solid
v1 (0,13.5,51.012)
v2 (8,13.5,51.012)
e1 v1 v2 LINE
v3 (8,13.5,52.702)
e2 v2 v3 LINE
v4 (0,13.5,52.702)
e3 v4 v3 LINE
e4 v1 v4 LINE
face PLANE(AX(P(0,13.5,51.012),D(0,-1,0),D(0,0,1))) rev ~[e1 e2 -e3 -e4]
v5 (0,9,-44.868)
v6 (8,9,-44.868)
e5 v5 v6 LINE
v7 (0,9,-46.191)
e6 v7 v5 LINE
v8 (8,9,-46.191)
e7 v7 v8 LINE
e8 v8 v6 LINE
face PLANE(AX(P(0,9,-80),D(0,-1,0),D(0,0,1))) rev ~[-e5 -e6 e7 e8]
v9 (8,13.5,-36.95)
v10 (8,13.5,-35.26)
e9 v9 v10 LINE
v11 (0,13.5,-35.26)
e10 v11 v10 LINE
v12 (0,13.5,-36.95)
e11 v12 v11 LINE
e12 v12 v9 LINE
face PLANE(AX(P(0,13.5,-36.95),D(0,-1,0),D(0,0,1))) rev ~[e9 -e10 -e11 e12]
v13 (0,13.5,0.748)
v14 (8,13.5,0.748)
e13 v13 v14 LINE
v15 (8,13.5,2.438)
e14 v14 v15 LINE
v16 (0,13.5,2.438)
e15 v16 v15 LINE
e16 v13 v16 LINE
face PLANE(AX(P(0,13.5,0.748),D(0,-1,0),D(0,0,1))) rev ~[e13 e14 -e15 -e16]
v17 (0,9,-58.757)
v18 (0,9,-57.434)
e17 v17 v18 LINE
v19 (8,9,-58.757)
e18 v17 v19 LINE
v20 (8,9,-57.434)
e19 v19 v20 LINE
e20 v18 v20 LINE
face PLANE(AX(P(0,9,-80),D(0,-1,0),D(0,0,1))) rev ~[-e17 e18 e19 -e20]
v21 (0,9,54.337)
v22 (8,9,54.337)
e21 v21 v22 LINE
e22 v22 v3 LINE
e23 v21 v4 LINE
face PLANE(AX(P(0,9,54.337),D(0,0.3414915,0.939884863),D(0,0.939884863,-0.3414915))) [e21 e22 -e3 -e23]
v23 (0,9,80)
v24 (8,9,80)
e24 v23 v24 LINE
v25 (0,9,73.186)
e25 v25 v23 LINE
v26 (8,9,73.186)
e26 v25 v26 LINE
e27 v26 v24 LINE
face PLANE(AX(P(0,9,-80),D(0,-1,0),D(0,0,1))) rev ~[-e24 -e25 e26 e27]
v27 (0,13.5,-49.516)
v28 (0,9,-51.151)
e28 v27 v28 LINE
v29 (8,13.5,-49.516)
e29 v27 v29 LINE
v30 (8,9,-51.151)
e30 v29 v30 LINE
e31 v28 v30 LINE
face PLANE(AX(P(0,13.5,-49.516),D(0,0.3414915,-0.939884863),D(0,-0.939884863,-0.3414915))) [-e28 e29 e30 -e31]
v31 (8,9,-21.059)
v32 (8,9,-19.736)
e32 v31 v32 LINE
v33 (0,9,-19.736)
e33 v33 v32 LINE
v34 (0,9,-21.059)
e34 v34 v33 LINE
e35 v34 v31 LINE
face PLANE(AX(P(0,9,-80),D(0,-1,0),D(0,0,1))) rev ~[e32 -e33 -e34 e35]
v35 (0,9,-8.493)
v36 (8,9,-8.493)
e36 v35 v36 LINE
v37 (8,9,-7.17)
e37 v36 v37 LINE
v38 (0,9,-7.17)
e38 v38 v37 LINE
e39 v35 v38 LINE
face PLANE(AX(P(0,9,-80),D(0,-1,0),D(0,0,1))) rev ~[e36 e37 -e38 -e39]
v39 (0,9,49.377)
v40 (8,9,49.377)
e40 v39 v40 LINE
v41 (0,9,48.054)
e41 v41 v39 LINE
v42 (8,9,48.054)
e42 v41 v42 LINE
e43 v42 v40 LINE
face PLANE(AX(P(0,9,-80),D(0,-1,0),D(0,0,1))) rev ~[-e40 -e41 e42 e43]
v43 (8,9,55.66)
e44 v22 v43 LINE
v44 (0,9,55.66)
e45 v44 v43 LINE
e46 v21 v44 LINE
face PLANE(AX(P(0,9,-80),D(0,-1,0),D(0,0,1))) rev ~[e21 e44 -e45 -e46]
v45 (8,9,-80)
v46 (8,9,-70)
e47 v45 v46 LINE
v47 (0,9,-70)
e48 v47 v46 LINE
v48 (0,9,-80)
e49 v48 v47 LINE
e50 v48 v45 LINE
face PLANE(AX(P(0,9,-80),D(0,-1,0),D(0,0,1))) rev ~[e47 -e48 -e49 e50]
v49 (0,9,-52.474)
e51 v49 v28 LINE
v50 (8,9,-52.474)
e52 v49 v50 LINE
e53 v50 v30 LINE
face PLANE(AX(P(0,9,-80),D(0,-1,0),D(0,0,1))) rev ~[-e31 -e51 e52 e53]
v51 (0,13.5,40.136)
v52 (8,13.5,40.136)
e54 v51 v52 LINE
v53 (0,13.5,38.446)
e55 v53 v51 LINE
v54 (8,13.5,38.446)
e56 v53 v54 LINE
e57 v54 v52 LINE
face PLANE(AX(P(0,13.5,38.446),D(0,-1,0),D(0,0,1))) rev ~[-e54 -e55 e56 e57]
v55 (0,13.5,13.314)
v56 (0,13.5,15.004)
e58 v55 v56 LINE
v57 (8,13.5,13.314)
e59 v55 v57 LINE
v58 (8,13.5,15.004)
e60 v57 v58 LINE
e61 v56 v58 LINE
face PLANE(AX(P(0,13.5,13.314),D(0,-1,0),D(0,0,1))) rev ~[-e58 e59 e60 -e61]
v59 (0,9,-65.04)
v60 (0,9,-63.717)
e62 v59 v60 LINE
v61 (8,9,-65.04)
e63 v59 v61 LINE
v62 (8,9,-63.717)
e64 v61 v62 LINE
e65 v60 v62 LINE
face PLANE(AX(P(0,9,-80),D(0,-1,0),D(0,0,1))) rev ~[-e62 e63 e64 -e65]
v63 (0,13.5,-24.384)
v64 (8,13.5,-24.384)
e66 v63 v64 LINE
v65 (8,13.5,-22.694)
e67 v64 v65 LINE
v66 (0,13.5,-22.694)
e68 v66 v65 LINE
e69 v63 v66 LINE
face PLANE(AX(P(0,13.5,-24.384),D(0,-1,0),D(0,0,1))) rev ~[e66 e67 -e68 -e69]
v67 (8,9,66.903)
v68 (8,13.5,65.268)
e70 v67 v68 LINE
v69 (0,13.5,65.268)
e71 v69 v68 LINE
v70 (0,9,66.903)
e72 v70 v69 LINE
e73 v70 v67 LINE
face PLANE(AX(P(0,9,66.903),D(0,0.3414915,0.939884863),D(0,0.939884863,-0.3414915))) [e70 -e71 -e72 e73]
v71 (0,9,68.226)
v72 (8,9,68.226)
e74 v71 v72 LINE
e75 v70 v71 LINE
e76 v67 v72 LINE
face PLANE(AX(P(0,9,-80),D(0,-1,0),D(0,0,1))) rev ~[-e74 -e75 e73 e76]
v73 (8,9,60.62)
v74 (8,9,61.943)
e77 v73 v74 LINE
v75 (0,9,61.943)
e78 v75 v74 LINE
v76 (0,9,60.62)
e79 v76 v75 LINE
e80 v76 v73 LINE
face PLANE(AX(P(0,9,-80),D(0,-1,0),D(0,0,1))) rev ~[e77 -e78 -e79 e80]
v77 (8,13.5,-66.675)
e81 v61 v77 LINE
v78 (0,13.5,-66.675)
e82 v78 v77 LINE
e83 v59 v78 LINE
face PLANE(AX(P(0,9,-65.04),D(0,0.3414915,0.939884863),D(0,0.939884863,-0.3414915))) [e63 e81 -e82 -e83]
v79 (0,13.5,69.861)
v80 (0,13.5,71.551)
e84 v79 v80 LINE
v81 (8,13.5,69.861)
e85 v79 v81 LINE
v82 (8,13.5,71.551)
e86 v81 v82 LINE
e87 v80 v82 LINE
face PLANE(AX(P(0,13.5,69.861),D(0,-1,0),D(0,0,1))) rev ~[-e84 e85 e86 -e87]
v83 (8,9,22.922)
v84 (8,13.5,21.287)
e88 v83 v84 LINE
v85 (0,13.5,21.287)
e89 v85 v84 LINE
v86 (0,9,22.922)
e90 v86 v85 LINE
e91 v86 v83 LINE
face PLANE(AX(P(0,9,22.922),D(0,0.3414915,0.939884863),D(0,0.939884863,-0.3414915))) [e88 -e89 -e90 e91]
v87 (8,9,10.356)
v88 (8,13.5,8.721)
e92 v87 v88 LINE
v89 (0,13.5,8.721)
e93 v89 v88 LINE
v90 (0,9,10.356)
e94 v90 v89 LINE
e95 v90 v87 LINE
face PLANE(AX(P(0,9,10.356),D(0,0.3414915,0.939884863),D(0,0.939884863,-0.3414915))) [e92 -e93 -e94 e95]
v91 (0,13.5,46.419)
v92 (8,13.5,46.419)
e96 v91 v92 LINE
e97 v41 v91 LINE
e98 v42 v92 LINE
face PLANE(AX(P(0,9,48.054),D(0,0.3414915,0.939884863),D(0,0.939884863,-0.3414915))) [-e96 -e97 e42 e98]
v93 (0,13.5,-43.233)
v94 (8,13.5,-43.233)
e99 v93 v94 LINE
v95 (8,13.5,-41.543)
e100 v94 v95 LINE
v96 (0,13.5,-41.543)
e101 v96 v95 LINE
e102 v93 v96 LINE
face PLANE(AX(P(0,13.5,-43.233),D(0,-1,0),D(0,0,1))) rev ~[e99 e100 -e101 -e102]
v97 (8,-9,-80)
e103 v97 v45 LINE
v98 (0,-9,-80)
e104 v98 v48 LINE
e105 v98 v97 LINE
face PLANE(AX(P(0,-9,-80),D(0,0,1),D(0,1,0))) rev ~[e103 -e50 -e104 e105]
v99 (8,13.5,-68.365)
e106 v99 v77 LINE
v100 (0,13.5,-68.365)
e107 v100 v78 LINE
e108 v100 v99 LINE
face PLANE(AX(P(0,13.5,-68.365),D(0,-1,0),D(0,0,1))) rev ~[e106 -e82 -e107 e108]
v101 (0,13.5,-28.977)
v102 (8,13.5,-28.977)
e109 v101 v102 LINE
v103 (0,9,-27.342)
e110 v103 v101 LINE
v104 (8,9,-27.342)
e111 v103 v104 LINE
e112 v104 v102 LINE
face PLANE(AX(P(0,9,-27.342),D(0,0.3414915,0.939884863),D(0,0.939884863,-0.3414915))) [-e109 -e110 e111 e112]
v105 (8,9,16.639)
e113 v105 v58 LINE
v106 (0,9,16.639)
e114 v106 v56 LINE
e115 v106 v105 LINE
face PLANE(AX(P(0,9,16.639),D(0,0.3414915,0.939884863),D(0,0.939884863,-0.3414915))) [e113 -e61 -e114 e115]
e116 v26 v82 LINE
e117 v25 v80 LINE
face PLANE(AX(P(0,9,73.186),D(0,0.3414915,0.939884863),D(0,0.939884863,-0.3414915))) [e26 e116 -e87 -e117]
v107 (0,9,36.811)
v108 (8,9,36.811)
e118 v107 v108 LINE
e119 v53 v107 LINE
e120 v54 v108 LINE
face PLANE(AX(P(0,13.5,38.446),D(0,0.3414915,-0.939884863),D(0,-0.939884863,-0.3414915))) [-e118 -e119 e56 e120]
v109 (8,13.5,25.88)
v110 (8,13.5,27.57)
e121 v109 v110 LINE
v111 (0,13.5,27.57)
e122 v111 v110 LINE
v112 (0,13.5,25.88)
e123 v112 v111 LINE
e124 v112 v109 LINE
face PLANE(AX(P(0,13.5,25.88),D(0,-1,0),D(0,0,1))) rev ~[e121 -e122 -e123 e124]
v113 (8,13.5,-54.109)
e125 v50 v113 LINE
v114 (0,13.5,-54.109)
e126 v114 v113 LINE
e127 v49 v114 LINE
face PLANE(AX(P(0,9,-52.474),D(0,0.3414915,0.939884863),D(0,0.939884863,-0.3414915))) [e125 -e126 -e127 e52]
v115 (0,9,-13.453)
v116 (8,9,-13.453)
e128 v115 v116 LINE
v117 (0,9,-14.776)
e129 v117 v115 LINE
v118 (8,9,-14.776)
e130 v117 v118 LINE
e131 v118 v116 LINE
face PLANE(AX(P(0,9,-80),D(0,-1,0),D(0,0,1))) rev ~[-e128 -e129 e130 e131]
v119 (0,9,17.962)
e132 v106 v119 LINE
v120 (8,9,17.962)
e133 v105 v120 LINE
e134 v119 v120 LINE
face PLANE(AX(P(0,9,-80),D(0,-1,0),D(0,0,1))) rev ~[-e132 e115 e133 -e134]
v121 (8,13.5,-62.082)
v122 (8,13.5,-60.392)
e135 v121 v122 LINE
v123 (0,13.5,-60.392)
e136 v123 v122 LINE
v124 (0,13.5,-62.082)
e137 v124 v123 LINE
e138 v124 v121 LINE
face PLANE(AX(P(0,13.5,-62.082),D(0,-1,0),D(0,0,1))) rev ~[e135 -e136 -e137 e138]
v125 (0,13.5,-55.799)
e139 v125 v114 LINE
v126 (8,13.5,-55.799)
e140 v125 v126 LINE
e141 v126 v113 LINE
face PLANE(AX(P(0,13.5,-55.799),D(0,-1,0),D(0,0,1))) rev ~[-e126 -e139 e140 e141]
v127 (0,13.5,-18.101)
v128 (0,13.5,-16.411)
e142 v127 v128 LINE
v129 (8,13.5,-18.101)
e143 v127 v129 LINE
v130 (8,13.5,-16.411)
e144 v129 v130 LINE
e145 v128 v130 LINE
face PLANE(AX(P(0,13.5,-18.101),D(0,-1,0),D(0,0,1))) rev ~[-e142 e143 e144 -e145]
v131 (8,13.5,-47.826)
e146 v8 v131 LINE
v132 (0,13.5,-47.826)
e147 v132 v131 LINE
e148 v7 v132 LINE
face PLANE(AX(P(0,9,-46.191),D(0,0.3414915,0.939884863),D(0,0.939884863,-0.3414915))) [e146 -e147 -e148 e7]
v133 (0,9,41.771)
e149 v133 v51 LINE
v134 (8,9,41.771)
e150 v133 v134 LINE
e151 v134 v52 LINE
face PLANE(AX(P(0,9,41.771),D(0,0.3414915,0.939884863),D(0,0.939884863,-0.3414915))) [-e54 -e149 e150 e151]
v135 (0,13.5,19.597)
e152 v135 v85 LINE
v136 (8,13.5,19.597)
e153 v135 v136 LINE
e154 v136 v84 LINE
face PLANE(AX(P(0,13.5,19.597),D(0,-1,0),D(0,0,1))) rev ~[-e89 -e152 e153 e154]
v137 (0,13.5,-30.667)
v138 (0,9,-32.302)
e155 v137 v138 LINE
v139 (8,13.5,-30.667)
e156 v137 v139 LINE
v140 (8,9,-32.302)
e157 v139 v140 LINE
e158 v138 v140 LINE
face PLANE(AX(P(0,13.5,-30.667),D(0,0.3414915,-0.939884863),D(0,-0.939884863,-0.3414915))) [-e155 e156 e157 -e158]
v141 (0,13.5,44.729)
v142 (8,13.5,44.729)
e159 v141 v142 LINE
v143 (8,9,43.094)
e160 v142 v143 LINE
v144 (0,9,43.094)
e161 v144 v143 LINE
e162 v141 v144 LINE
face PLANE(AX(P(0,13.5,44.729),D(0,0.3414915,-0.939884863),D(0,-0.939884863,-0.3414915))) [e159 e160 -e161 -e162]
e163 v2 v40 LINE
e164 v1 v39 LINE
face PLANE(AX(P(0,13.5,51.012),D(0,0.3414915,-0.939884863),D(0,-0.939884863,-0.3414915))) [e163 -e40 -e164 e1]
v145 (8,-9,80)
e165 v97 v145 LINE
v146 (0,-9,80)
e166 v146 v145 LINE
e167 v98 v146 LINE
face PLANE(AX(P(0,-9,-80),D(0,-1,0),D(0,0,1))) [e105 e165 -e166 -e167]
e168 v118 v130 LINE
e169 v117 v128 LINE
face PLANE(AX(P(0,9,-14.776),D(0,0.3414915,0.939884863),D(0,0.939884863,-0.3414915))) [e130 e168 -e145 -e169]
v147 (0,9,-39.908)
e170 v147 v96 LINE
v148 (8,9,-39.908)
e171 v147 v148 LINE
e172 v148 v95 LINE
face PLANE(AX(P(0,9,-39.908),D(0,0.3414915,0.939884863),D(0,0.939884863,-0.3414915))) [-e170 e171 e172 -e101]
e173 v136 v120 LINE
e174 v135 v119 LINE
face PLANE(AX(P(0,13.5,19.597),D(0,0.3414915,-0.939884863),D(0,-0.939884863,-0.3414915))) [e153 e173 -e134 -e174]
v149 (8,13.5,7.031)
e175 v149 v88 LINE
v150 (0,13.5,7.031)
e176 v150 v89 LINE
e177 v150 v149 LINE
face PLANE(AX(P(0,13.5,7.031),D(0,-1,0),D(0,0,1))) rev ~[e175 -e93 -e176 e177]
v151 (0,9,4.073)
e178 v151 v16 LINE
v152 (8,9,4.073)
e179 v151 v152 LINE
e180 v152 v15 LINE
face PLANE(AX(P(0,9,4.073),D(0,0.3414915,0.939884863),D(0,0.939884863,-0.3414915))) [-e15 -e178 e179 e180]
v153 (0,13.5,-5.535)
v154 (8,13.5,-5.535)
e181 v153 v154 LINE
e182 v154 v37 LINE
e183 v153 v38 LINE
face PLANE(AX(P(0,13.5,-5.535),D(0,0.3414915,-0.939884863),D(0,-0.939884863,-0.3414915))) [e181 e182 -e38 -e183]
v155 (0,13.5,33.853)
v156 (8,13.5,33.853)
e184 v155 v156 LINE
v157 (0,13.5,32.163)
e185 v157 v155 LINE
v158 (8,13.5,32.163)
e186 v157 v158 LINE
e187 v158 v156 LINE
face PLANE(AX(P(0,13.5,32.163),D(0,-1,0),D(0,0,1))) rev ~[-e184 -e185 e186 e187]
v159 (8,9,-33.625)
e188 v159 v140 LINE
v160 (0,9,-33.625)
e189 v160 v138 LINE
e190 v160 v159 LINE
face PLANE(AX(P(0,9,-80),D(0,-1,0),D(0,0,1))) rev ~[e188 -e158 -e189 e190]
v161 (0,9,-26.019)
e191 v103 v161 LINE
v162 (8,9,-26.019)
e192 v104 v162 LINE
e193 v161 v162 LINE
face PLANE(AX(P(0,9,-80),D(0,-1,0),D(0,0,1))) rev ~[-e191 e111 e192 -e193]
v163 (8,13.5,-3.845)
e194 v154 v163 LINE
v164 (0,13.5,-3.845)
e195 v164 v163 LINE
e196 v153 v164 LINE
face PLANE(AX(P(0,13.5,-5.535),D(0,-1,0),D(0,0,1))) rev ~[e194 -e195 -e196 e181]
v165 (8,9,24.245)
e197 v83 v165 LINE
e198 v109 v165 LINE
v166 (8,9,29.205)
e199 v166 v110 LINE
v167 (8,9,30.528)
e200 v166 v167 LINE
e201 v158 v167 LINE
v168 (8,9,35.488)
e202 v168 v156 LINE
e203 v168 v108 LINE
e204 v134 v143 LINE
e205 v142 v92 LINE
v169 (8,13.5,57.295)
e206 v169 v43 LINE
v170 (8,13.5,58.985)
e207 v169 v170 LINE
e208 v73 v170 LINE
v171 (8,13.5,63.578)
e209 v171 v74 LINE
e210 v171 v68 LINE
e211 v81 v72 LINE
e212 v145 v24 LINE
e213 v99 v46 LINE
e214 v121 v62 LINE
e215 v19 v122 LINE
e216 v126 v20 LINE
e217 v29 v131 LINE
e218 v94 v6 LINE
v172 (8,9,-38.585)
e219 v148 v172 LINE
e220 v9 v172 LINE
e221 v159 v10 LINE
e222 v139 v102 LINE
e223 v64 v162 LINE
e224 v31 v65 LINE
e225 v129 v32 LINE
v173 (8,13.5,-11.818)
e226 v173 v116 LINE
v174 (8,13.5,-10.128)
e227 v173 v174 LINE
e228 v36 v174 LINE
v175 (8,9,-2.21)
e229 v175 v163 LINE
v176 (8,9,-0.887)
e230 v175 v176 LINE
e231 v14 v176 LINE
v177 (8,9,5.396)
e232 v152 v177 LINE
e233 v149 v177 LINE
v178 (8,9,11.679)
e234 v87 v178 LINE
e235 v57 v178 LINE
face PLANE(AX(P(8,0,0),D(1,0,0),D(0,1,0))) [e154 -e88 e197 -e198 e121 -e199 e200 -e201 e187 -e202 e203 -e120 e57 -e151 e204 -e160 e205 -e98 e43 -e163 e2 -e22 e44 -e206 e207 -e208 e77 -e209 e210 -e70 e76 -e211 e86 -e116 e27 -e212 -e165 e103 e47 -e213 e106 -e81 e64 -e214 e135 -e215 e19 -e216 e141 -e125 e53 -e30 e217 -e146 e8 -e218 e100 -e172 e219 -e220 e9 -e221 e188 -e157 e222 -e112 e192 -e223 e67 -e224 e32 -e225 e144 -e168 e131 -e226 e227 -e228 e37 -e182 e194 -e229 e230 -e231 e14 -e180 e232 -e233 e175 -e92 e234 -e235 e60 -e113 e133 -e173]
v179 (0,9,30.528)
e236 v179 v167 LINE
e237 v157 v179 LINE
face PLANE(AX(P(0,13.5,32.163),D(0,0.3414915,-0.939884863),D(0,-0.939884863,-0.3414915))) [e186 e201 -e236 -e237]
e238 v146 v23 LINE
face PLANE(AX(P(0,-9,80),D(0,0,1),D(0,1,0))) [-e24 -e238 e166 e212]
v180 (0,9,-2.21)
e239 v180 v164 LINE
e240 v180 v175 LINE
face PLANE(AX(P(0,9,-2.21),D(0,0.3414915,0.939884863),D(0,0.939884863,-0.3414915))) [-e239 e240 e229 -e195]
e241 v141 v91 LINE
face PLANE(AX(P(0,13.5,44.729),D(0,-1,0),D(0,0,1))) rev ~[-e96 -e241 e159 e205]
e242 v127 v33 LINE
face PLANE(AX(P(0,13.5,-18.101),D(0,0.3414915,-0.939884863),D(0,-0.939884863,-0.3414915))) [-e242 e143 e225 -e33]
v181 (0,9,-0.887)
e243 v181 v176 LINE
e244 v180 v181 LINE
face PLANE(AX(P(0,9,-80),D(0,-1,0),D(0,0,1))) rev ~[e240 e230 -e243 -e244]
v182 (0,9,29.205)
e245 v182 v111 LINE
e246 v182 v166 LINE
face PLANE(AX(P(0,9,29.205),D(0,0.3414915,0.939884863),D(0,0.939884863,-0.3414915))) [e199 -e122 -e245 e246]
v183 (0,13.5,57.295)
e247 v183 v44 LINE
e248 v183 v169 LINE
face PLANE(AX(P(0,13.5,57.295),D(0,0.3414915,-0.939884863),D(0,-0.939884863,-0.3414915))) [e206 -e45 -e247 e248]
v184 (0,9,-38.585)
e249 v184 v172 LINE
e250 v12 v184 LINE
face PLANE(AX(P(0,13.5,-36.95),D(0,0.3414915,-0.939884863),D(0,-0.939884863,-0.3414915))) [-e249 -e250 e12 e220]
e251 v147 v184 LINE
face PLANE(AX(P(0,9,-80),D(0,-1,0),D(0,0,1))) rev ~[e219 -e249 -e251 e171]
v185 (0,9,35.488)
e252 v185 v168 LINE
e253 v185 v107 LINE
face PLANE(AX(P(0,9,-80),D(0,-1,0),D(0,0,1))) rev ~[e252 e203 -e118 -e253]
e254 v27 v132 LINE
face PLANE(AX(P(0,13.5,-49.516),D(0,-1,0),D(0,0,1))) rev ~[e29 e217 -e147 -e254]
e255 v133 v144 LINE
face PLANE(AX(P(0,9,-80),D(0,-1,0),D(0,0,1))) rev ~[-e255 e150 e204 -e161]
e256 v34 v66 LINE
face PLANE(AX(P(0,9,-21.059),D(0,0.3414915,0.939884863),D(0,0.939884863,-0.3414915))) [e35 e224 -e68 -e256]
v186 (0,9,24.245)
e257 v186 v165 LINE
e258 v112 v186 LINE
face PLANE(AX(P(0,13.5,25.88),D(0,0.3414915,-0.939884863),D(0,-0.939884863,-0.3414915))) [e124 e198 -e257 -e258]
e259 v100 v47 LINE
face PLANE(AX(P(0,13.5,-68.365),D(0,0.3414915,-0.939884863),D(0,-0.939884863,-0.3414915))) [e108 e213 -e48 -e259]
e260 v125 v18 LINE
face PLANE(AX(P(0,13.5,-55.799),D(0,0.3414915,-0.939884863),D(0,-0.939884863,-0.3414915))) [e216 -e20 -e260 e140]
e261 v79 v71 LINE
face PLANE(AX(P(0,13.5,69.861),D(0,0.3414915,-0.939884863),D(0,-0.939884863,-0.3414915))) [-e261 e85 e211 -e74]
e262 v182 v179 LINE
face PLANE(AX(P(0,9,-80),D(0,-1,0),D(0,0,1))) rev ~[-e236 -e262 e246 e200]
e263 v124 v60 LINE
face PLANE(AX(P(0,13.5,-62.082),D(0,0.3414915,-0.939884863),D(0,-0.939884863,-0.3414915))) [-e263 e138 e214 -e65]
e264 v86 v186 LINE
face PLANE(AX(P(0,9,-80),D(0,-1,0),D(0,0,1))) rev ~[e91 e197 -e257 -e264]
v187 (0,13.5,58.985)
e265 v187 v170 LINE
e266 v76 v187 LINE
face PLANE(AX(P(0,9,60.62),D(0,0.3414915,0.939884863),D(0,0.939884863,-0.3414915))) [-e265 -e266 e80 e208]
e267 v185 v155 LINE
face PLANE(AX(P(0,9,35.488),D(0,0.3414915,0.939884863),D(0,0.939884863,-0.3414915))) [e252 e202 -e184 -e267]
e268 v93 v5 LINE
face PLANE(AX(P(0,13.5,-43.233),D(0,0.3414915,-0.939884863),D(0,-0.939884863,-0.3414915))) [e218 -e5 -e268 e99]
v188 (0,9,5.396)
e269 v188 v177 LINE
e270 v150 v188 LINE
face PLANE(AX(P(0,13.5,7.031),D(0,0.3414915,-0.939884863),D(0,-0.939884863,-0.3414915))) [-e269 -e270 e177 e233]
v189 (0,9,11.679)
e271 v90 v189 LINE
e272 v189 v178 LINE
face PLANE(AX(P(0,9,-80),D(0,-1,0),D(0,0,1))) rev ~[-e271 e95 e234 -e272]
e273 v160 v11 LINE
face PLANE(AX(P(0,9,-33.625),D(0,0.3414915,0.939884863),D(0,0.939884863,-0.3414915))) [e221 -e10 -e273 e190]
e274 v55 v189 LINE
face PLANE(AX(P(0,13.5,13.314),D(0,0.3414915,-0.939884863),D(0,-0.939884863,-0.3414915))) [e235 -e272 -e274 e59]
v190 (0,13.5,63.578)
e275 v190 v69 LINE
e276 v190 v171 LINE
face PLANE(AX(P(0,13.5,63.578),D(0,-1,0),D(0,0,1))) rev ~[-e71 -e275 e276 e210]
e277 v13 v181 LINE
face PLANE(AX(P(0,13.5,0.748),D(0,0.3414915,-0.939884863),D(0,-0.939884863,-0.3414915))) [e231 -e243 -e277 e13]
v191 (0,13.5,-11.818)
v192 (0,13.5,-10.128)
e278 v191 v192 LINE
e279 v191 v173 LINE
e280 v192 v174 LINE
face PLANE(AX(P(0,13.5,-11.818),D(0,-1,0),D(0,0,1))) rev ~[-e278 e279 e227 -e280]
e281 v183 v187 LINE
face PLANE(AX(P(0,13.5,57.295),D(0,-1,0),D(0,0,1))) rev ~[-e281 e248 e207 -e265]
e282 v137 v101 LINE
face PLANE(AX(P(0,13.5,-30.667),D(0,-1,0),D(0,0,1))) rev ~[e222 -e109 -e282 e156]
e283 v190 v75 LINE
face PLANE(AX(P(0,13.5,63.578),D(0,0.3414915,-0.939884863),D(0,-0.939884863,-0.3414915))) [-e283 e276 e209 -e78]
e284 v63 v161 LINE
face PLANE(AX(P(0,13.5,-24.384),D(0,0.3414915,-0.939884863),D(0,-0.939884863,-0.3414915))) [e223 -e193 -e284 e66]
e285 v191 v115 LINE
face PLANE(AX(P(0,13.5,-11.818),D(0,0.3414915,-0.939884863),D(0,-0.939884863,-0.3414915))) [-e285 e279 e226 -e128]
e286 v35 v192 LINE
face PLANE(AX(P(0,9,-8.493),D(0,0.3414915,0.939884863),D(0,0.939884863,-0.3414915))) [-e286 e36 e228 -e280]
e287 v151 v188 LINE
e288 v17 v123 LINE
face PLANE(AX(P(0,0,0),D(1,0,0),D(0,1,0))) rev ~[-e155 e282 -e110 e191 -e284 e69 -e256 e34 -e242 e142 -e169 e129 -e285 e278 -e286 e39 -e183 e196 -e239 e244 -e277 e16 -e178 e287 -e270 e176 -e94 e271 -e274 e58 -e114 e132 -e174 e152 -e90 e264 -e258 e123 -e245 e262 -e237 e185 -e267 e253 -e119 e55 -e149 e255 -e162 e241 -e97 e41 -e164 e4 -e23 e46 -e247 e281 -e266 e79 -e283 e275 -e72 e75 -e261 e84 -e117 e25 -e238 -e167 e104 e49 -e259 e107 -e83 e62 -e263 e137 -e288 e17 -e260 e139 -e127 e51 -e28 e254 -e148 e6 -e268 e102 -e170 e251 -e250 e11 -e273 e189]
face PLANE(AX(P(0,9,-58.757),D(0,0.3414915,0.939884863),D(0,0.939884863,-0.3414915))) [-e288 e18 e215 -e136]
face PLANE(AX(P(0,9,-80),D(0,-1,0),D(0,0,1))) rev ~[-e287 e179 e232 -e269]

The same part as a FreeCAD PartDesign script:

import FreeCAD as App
import Part
import Sketcher
from FreeCAD import Vector


def add_polygon(sketch, points):
    """Adds a closed chain of lines whose ends are joined by coincident constraints."""
    first, n = sketch.GeometryCount, len(points)
    for a, b in zip(points, points[1:] + points[:1]):
        sketch.addGeometry(Part.LineSegment(App.Vector(*a, 0), App.Vector(*b, 0)), False)
    for i in range(n):
        sketch.addConstraint(Sketcher.Constraint("Coincident", first + i, 2, first + (i + 1) % n, 1))

doc = App.newDocument("Part")
body = doc.addObject("PartDesign::Body", "Body")

sketch1 = body.newObject("Sketcher::SketchObject", "Sketch")
sketch1.AttachmentSupport = (doc.getObject("YZ_Plane"), [""])
sketch1.MapMode = "FlatFace"
add_polygon(sketch1, [(-9, 80), (-9, -80), (9, -80), (9, 80)])
sketch1.addConstraint([
    Sketcher.Constraint("Vertical", 0),
    Sketcher.Constraint("Horizontal", 1),
    Sketcher.Constraint("Vertical", 2),
    Sketcher.Constraint("Horizontal", 3),
    Sketcher.Constraint("Symmetric", 0, 2, 2, 2, -1, 1),
    Sketcher.Constraint("DistanceX", 1, 1, 1, 2, 18.0),
    Sketcher.Constraint("DistanceY", 0, 2, 0, 1, 160.0),
])
pad1 = body.newObject("PartDesign::Pad", "Pad")
pad1.Profile = sketch1
pad1.Length = 8

sketch2 = body.newObject("Sketcher::SketchObject", "Sketch001")
sketch2.AttachmentSupport = (doc.getObject("YZ_Plane"), [""])
sketch2.MapMode = "FlatFace"
add_polygon(sketch2, [(9, -65.04), (9, -70), (13.5, -68.365), (13.5, -66.675)])
sketch2.addConstraint([
    Sketcher.Constraint("Vertical", 0),
    Sketcher.Constraint("Vertical", 2),
    Sketcher.Constraint("Equal", 1, 3),
    Sketcher.Constraint("DistanceX", -1, 1, 0, 2, 9.0),
    Sketcher.Constraint("DistanceY", 0, 2, -1, 1, 70.0),
    Sketcher.Constraint("DistanceY", 0, 2, 0, 1, 4.96),
    Sketcher.Constraint("DistanceY", 2, 1, 2, 2, 1.69),
    Sketcher.Constraint("DistanceX", -1, 1, 1, 2, 13.5),
])
pad2 = body.newObject("PartDesign::Pad", "Pad001")
pad2.Profile = sketch2
pad2.Length = 8
doc.recompute()

linearpattern = body.newObject("PartDesign::LinearPattern", "LinearPattern")
linearpattern.Originals = [pad2]
linearpattern.Direction = (doc.getObject("Z_Axis"), [""])
linearpattern.Mode = "offset"
linearpattern.Offset = 6.283
linearpattern.Occurrences = 23
body.Tip = linearpattern

doc.recompute()
